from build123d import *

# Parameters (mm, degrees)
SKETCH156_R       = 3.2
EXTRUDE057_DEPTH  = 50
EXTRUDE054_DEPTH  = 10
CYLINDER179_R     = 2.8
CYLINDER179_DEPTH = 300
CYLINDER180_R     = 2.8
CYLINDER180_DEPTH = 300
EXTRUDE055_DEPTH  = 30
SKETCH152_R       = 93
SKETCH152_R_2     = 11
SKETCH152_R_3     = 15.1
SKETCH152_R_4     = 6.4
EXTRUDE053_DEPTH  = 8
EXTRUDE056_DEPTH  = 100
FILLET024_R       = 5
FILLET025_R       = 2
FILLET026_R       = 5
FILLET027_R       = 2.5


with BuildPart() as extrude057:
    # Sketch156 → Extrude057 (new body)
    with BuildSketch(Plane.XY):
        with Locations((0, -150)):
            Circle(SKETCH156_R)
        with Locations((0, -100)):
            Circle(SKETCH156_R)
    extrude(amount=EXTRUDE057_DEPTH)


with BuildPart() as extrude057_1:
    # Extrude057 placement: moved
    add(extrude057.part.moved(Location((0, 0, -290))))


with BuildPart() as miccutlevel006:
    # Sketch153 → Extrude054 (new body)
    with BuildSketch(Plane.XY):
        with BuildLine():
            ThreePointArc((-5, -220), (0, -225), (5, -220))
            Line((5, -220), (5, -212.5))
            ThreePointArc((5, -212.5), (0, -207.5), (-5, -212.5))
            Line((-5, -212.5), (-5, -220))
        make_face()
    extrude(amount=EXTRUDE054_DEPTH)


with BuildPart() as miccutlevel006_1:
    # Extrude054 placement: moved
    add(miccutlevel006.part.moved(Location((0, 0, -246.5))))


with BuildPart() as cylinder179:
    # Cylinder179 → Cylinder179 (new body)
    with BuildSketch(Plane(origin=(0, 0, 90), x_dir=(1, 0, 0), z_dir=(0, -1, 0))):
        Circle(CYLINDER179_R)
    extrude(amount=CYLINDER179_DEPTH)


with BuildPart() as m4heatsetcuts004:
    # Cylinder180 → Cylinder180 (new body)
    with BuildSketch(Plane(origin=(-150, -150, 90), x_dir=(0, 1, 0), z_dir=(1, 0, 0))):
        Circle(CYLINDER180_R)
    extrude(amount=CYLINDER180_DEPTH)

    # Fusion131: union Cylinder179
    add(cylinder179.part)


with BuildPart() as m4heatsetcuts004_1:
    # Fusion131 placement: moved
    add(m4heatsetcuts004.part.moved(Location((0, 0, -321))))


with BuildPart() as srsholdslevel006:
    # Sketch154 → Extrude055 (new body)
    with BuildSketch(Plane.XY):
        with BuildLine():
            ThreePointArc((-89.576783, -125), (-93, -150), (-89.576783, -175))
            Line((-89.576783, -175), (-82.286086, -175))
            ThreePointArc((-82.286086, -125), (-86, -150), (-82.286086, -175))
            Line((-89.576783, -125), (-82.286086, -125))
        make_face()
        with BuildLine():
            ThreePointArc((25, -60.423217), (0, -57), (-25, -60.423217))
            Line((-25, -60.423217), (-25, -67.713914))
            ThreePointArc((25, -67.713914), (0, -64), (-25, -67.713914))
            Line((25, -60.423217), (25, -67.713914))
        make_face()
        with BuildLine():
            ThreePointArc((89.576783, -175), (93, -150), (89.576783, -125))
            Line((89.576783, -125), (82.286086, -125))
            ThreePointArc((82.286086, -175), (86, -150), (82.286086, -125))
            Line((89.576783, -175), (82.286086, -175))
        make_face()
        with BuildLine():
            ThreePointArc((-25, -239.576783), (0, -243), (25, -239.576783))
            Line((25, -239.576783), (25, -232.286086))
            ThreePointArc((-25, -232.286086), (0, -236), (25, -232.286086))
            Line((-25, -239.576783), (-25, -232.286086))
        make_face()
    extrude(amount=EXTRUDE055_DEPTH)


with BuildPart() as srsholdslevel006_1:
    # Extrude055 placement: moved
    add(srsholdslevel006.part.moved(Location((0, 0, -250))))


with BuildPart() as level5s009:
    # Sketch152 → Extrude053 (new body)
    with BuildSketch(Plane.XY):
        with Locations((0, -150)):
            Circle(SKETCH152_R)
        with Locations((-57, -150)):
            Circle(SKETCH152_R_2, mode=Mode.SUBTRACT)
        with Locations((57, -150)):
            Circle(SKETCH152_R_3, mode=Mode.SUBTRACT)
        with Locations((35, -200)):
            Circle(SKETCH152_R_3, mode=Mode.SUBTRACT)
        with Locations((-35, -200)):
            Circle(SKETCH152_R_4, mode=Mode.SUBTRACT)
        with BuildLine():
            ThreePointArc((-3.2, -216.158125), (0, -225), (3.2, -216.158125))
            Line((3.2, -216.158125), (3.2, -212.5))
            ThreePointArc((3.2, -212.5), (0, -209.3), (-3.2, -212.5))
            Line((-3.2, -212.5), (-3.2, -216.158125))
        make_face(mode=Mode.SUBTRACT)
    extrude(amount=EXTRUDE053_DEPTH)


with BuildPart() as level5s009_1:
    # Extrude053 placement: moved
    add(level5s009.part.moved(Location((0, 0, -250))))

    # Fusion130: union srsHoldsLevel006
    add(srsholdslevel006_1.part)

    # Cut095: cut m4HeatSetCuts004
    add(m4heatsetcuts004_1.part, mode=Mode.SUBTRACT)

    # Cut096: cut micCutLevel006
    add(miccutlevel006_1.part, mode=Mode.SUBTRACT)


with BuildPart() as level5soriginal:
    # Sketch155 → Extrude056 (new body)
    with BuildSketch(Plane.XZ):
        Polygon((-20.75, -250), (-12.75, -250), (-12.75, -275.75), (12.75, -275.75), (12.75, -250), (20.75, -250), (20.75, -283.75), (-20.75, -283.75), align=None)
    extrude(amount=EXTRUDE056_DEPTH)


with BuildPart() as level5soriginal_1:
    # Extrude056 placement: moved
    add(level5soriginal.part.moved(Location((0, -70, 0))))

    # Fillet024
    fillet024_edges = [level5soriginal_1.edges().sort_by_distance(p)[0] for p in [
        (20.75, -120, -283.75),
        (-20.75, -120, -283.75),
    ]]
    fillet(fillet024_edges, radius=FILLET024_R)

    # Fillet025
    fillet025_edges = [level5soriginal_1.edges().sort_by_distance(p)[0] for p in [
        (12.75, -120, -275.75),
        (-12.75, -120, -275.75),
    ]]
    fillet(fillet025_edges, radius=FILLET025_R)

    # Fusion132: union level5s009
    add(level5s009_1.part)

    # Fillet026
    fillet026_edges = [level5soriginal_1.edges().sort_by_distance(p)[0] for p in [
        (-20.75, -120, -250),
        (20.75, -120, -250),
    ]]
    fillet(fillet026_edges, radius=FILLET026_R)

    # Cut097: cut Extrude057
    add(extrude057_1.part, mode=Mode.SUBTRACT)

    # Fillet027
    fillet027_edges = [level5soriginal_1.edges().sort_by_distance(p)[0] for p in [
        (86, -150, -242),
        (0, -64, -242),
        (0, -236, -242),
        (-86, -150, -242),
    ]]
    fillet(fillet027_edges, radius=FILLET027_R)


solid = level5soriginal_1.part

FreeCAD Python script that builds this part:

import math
import FreeCAD as App
import Part
import Sketcher

V = App.Vector


def edges_at(feature, points):
    """Names of the edges that pass closest to the given points."""
    edges = feature.Shape.Edges
    near = lambda p: min(range(len(edges)), key=lambda i: edges[i].distToShape(Part.Vertex(*p))[0])
    return sorted({f"Edge{near(p) + 1}" for p in points})


def add_polygon(sketch, points):
    """Adds a closed chain of lines whose ends are joined by coincident constraints."""
    first, n = sketch.GeometryCount, len(points)
    for a, b in zip(points, points[1:] + points[:1]):
        sketch.addGeometry(Part.LineSegment(App.Vector(*a, 0), App.Vector(*b, 0)), False)
    for i in range(n):
        sketch.addConstraint(Sketcher.Constraint("Coincident", first + i, 2, first + (i + 1) % n, 1))

doc = App.newDocument("Part")
body = doc.addObject("PartDesign::Body", "Body")
body.AllowCompound = True

# Sketch on XY plane
sketch1 = body.newObject("Sketcher::SketchObject", "Sketch")
sketch1.AttachmentSupport = (doc.getObject("XY_Plane"), [""])
sketch1.MapMode = "FlatFace"
sketch1.addGeometry([
    Part.Circle(V(0, -150, 0), V(0, 0, 1), 3.2),
    Part.Circle(V(0, -100, 0), V(0, 0, 1), 3.2),
], False)
sketch1.addConstraint([
    Sketcher.Constraint("Equal", 0, 1),
    Sketcher.Constraint("PointOnObject", 0, 3, -2),
    Sketcher.Constraint("PointOnObject", 1, 3, -2),
    Sketcher.Constraint("Diameter", 0, 6.4),
    Sketcher.Constraint("DistanceY", 0, 3, -1, 1, 150.0),
    Sketcher.Constraint("DistanceY", 1, 3, -1, 1, 100.0),
])
pad1 = body.newObject("PartDesign::Pad", "Pad")
pad1.Profile = sketch1
pad1.Length = 50
body2 = doc.addObject("PartDesign::Body", "Body001")
body2.AllowCompound = True
doc.recompute()

body.Placement = App.Placement(V(0, 0, -290), App.Rotation(V(0, 0, 1), 0))
boolean = body2.newObject("PartDesign::Boolean", "Boolean")
boolean.Type = "Fuse"
boolean.addObjects([body])
body3 = doc.addObject("PartDesign::Body", "Body002")

# Sketch on XY plane
sketch2 = body3.newObject("Sketcher::SketchObject", "Sketch001")
sketch2.AttachmentSupport = (doc.getObject("XY_Plane002"), [""])
sketch2.MapMode = "FlatFace"
sketch2.addGeometry([
    Part.ArcOfCircle(Part.Circle(V(0, -220, 0), V(0, 0, 1), 5), math.radians(180), math.radians(360)),
    Part.LineSegment(V(5, -220, 0), V(5, -212, 0)),
    Part.ArcOfCircle(Part.Circle(V(0, -212, 0), V(0, 0, 1), 5), math.radians(0), math.radians(180)),
    Part.LineSegment(V(-5, -212, 0), V(-5, -220, 0)),
], False)
sketch2.addConstraint([
    Sketcher.Constraint("Tangent", 0, 2, 1, 1),
    Sketcher.Constraint("Tangent", 1, 2, 2, 1),
    Sketcher.Constraint("Tangent", 2, 2, 3, 1),
    Sketcher.Constraint("Tangent", 3, 2, 0, 1),
    Sketcher.Constraint("Vertical", 1),
    Sketcher.Constraint("Vertical", 3),
    Sketcher.Constraint("PointOnObject", 0, 3, -2),
    Sketcher.Constraint("Radius", 0, 5.0),
    Sketcher.Constraint("DistanceY", 1, 1, 1, 2, 7.5),
    Sketcher.Constraint("DistanceY", 0, 3, -1, 1, 220.0),
])
pad2 = body3.newObject("PartDesign::Pad", "Pad001")
pad2.Profile = sketch2
pad2.Length = 10
body4 = doc.addObject("PartDesign::Body", "Body003")
doc.recompute()

body3.Placement = App.Placement(V(0, 0, -246.5), App.Rotation(V(0, 0, 1), 0))
boolean2 = body4.newObject("PartDesign::Boolean", "Boolean001")
boolean2.Type = "Fuse"
boolean2.addObjects([body3])
body5 = doc.addObject("PartDesign::Body", "Body004")

# Sketch on XZ plane
sketch3 = body5.newObject("Sketcher::SketchObject", "Sketch002")
sketch3.AttachmentSupport = (doc.getObject("XZ_Plane004"), [""])
sketch3.MapMode = "FlatFace"
sketch3.addGeometry(Part.Circle(V(0, 90, 0), V(0, 0, 1), 2.8), False)
sketch3.addConstraint([
    Sketcher.Constraint("PointOnObject", 0, 3, -2),
    Sketcher.Constraint("Diameter", 0, 5.6),
    Sketcher.Constraint("DistanceY", -1, 1, 0, 3, 90.0),
])
pad3 = body5.newObject("PartDesign::Pad", "Pad002")
pad3.Profile = sketch3
pad3.Length = 300
body6 = doc.addObject("PartDesign::Body", "Body005")

# Sketch on YZ plane
sketch4 = body6.newObject("Sketcher::SketchObject", "Sketch003")
sketch4.AttachmentSupport = (doc.getObject("YZ_Plane005"), [""])
sketch4.MapMode = "FlatFace"
sketch4.AttachmentOffset = App.Placement(V(0, 0, -150), App.Rotation())
sketch4.addGeometry(Part.Circle(V(-150, 90, 0), V(0, 0, 1), 2.8), False)
sketch4.addConstraint([
    Sketcher.Constraint("Diameter", 0, 5.6),
    Sketcher.Constraint("DistanceX", 0, 3, -1, 1, 150.0),
    Sketcher.Constraint("DistanceY", -1, 1, 0, 3, 90.0),
])
pad4 = body6.newObject("PartDesign::Pad", "Pad003")
pad4.Profile = sketch4
pad4.Length = 300
doc.recompute()

boolean3 = body6.newObject("PartDesign::Boolean", "Boolean002")
boolean3.Type = "Fuse"
boolean3.addObjects([body5])
body7 = doc.addObject("PartDesign::Body", "Body006")
doc.recompute()

body6.Placement = App.Placement(V(0, 0, -321), App.Rotation(V(0, 0, 1), 0))
boolean4 = body7.newObject("PartDesign::Boolean", "Boolean003")
boolean4.Type = "Fuse"
boolean4.addObjects([body6])
body8 = doc.addObject("PartDesign::Body", "Body007")
body8.AllowCompound = True

# Sketch on XY plane
sketch5 = body8.newObject("Sketcher::SketchObject", "Sketch004")
sketch5.AttachmentSupport = (doc.getObject("XY_Plane007"), [""])
sketch5.MapMode = "FlatFace"
sketch5.addGeometry([
    Part.ArcOfCircle(Part.Circle(V(0.000008, -150, 0), V(0, 0, 1), 93.000008), math.radians(164.406106), math.radians(195.593894)),  # 0
    Part.LineSegment(V(-89.576783, -175, 0), V(-82.286086, -175, 0)),  # 1
    Part.ArcOfCircle(Part.Circle(V(-0.000007, -150, 0), V(0, 0, 1), 85.999993), math.radians(163.100269), math.radians(196.899731)),  # 2
    Part.LineSegment(V(-82.286086, -125, 0), V(-89.576783, -125, 0)),  # 3
    Part.ArcOfCircle(Part.Circle(V(0, -150.000008, 0), V(0, 0, 1), 93.000008), math.radians(74.406106), math.radians(105.593894)),  # 4
    Part.LineSegment(V(-25, -60.423217, 0), V(-25, -67.713914, 0)),  # 5
    Part.ArcOfCircle(Part.Circle(V(0, -149.999993, 0), V(0, 0, 1), 85.999993), math.radians(73.100269), math.radians(106.899731)),  # 6
    Part.LineSegment(V(25, -67.713914, 0), V(25, -60.423217, 0)),  # 7
    Part.ArcOfCircle(Part.Circle(V(-0.000008, -150, 0), V(0, 0, 1), 93.000008), math.radians(-15.593894), math.radians(15.593894)),  # 8
    Part.LineSegment(V(89.576783, -125, 0), V(82.286086, -125, 0)),  # 9
    Part.ArcOfCircle(Part.Circle(V(0.000007, -150, 0), V(0, 0, 1), 85.999993), math.radians(-16.899731), math.radians(16.899731)),  # 10
    Part.LineSegment(V(82.286086, -175, 0), V(89.576783, -175, 0)),  # 11
    Part.ArcOfCircle(Part.Circle(V(0, -149.999992, 0), V(0, 0, 1), 93.000008), math.radians(-105.593894), math.radians(-74.406106)),  # 12
    Part.LineSegment(V(25, -239.576783, 0), V(25, -232.286086, 0)),  # 13
    Part.ArcOfCircle(Part.Circle(V(0, -150.000007, 0), V(0, 0, 1), 85.999993), math.radians(-106.899731), math.radians(-73.100269)),  # 14
    Part.LineSegment(V(-25, -232.286086, 0), V(-25, -239.576783, 0)),  # 15
], False)
sketch5.addConstraint([
    Sketcher.Constraint("Coincident", 0, 2, 1, 1),
    Sketcher.Constraint("Coincident", 1, 2, 2, 2),
    Sketcher.Constraint("Coincident", 2, 1, 3, 1),
    Sketcher.Constraint("Coincident", 3, 2, 0, 1),
    Sketcher.Constraint("Coincident", 4, 2, 5, 1),
    Sketcher.Constraint("Coincident", 5, 2, 6, 2),
    Sketcher.Constraint("Coincident", 6, 1, 7, 1),
    Sketcher.Constraint("Coincident", 7, 2, 4, 1),
    Sketcher.Constraint("Coincident", 8, 2, 9, 1),
    Sketcher.Constraint("Coincident", 9, 2, 10, 2),
    Sketcher.Constraint("Coincident", 10, 1, 11, 1),
    Sketcher.Constraint("Coincident", 11, 2, 8, 1),
    Sketcher.Constraint("Coincident", 12, 2, 13, 1),
    Sketcher.Constraint("Coincident", 13, 2, 14, 2),
    Sketcher.Constraint("Coincident", 14, 1, 15, 1),
    Sketcher.Constraint("Coincident", 15, 2, 12, 1),
    Sketcher.Constraint("Horizontal", 1),
    Sketcher.Constraint("Horizontal", 3),
    Sketcher.Constraint("Vertical", 5),
    Sketcher.Constraint("Vertical", 7),
    Sketcher.Constraint("Horizontal", 9),
    Sketcher.Constraint("Horizontal", 11),
    Sketcher.Constraint("Vertical", 13),
    Sketcher.Constraint("Vertical", 15),
    Sketcher.Constraint("Coincident", 6, 3, 2, 3),
    Sketcher.Constraint("Coincident", 8, 3, 2, 3),
    Sketcher.Constraint("Coincident", 10, 3, 0, 3),
    Sketcher.Constraint("Coincident", 12, 3, 6, 3),
    Sketcher.Constraint("Coincident", 14, 3, 2, 3),
    Sketcher.Constraint("PointOnObject", 4, 3, -2),
    Sketcher.Constraint("PointOnObject", 6, 3, -2),
    Sketcher.Constraint("DistanceY", 0, 3, -1, 1, 150.0),
    Sketcher.Constraint("DistanceY", 2, 3, -1, 1, 150.0),
    Sketcher.Constraint("DistanceY", 0, 2, -1, 1, 175.0),
    Sketcher.Constraint("DistanceY", 2, 1, -1, 1, 125.0),
    Sketcher.Constraint("DistanceX", 4, 2, -1, 1, 25.0),
    Sketcher.Constraint("DistanceX", -1, 1, 6, 1, 25.0),
    Sketcher.Constraint("DistanceY", 8, 2, -1, 1, 125.0),
    Sketcher.Constraint("DistanceY", 10, 1, -1, 1, 175.0),
    Sketcher.Constraint("DistanceX", -1, 1, 12, 2, 25.0),
    Sketcher.Constraint("DistanceX", 14, 1, -1, 1, 25.0),
    Sketcher.Constraint("Radius", 0, 93.000008),
    Sketcher.Constraint("Radius", 2, 85.999993),
    Sketcher.Constraint("Radius", 4, 93.000008),
    Sketcher.Constraint("Radius", 6, 85.999993),
    Sketcher.Constraint("Radius", 8, 93.000008),
    Sketcher.Constraint("Radius", 10, 85.999993),
    Sketcher.Constraint("Radius", 12, 93.000008),
    Sketcher.Constraint("Radius", 14, 85.999993),
    Sketcher.Constraint("DistanceX", 1, 1, 1, 2, 7.290697),
    Sketcher.Constraint("DistanceY", 5, 2, 5, 1, 7.290697),
])
pad5 = body8.newObject("PartDesign::Pad", "Pad004")
pad5.Profile = sketch5
pad5.Length = 30
body9 = doc.addObject("PartDesign::Body", "Body008")
body9.AllowCompound = True
doc.recompute()

body8.Placement = App.Placement(V(0, 0, -250), App.Rotation(V(0, 0, 1), 0))
boolean5 = body9.newObject("PartDesign::Boolean", "Boolean004")
boolean5.Type = "Fuse"
boolean5.addObjects([body8])
body10 = doc.addObject("PartDesign::Body", "Body009")

# Sketch on XY plane
sketch6 = body10.newObject("Sketcher::SketchObject", "Sketch005")
sketch6.AttachmentSupport = (doc.getObject("XY_Plane009"), [""])
sketch6.MapMode = "FlatFace"
sketch6.addGeometry([
    Part.Circle(V(0, -150, 0), V(0, 0, 1), 93),  # 0
    Part.ArcOfCircle(Part.Circle(V(0, -220, 0), V(0, 0, 1), 5), math.radians(130), math.radians(410)),  # 1
    Part.LineSegment(V(-3.2, -216.2, 0), V(-3.2, -212.5, 0)),  # 2
    Part.ArcOfCircle(Part.Circle(V(0, -212.5, 0), V(0, 0, 1), 3.2), math.radians(0), math.radians(180)),  # 3
    Part.LineSegment(V(3.2, -212.5, 0), V(3.2, -216.2, 0)),  # 4
    Part.Circle(V(-35, -200, 0), V(0, 0, 1), 6.4),  # 5
    Part.Circle(V(35, -200, 0), V(0, 0, 1), 15.1),  # 6
    Part.Circle(V(-57, -150, 0), V(0, 0, 1), 11),  # 7
    Part.Circle(V(57, -150, 0), V(0, 0, 1), 15.1),  # 8
], False)
sketch6.addConstraint([
    Sketcher.Constraint("Coincident", 1, 1, 2, 1),
    Sketcher.Constraint("Tangent", 2, 2, 3, 2),
    Sketcher.Constraint("Tangent", 3, 1, 4, 1),
    Sketcher.Constraint("Coincident", 4, 2, 1, 2),
    Sketcher.Constraint("Vertical", 2),
    Sketcher.Constraint("Vertical", 4),
    Sketcher.Constraint("Equal", 6, 8),
    Sketcher.Constraint("Symmetric", 5, 3, 6, 3, -2),
    Sketcher.Constraint("Symmetric", 7, 3, 8, 3, -2),
    Sketcher.Constraint("Symmetric", 1, 1, 4, 2, -2),
    Sketcher.Constraint("PointOnObject", 0, 3, -2),
    Sketcher.Constraint("Horizontal", 0, 3, 7, 3),
    Sketcher.Constraint("Diameter", 0, 186.0),
    Sketcher.Constraint("Diameter", 7, 22.0),
    Sketcher.Constraint("Radius", 1, 5.0),
    Sketcher.Constraint("Diameter", 5, 12.8),
    Sketcher.Constraint("Diameter", 6, 30.2),
    Sketcher.Constraint("Radius", 3, 3.2),
    Sketcher.Constraint("DistanceY", 0, 3, -1, 1, 150.0),
    Sketcher.Constraint("DistanceY", 1, 3, -1, 1, 220.0),
    Sketcher.Constraint("DistanceX", 5, 3, -1, 1, 35.0),
    Sketcher.Constraint("DistanceY", 5, 3, -1, 1, 200.0),
    Sketcher.Constraint("DistanceX", 7, 3, -1, 1, 57.0),
    Sketcher.Constraint("DistanceY", 3, 3, -1, 1, 212.5),
])
pad6 = body10.newObject("PartDesign::Pad", "Pad005")
pad6.Profile = sketch6
pad6.Length = 8
body11 = doc.addObject("PartDesign::Body", "Body010")
doc.recompute()

body10.Placement = App.Placement(V(0, 0, -250), App.Rotation(V(0, 0, 1), 0))
boolean6 = body11.newObject("PartDesign::Boolean", "Boolean005")
boolean6.Type = "Fuse"
boolean6.addObjects([body10])
doc.recompute()

boolean7 = body11.newObject("PartDesign::Boolean", "Boolean006")
boolean7.Type = "Fuse"
boolean7.addObjects([body9])
doc.recompute()

boolean8 = body11.newObject("PartDesign::Boolean", "Boolean007")
boolean8.Type = "Cut"
boolean8.addObjects([body7])
doc.recompute()

boolean9 = body11.newObject("PartDesign::Boolean", "Boolean008")
boolean9.Type = "Cut"
boolean9.addObjects([body4])
body12 = doc.addObject("PartDesign::Body", "Body011")

# Sketch on XZ plane
sketch7 = body12.newObject("Sketcher::SketchObject", "Sketch006")
sketch7.AttachmentSupport = (doc.getObject("XZ_Plane011"), [""])
sketch7.MapMode = "FlatFace"
add_polygon(sketch7, [(-13, -250), (-21, -250), (-21, -284), (21, -284), (21, -250), (13, -250), (13, -276), (-13, -276)])  # lines 0-7
sketch7.addConstraint([
    Sketcher.Constraint("Horizontal", 0),
    Sketcher.Constraint("Vertical", 1),
    Sketcher.Constraint("Horizontal", 2),
    Sketcher.Constraint("Vertical", 3),
    Sketcher.Constraint("Horizontal", 4),
    Sketcher.Constraint("Vertical", 5),
    Sketcher.Constraint("Horizontal", 6),
    Sketcher.Constraint("Vertical", 7),
    Sketcher.Constraint("Symmetric", 0, 2, 3, 2, -2),
    Sketcher.Constraint("Equal", 0, 4),
    Sketcher.Constraint("DistanceX", 0, 2, 0, 1, 8.0),
    Sketcher.Constraint("DistanceX", 2, 1, 2, 2, 41.5),
    Sketcher.Constraint("DistanceY", 0, 2, -1, 1, 250.0),
    Sketcher.Constraint("DistanceY", 2, 2, 5, 2, 8.0),
    Sketcher.Constraint("DistanceY", 1, 2, 1, 1, 33.75),
])
pad7 = body12.newObject("PartDesign::Pad", "Pad006")
pad7.Profile = sketch7
pad7.Length = 100
body13 = doc.addObject("PartDesign::Body", "Body012")
doc.recompute()

body12.Placement = App.Placement(V(0, -70, 0), App.Rotation(V(0, 0, 1), 0))
boolean10 = body13.newObject("PartDesign::Boolean", "Boolean009")
boolean10.Type = "Fuse"
boolean10.addObjects([body12])
doc.recompute()

fillet = body13.newObject("PartDesign::Fillet", "Fillet")
fillet.Base = (boolean10, edges_at(boolean10, [(20.75, -120, -283.75), (-20.75, -120, -283.75)]))
fillet.Radius = 5
doc.recompute()

fillet2 = body13.newObject("PartDesign::Fillet", "Fillet001")
fillet2.Base = (fillet, edges_at(fillet, [(12.75, -120, -275.75), (-12.75, -120, -275.75)]))
fillet2.Radius = 2
doc.recompute()

boolean11 = body13.newObject("PartDesign::Boolean", "Boolean010")
boolean11.Type = "Fuse"
boolean11.addObjects([body11])
doc.recompute()

fillet3 = body13.newObject("PartDesign::Fillet", "Fillet002")
fillet3.Base = (boolean11, edges_at(boolean11, [(-20.75, -120, -250), (20.75, -120, -250)]))
fillet3.Radius = 5
doc.recompute()

boolean12 = body13.newObject("PartDesign::Boolean", "Boolean011")
boolean12.Type = "Cut"
boolean12.addObjects([body2])
doc.recompute()

fillet4 = body13.newObject("PartDesign::Fillet", "Fillet003")
fillet4.Base = (boolean12, edges_at(boolean12, [
    (86, -150, -242),
    (0, -64, -242),
    (0, -236, -242),
    (-86, -150, -242),
]))
fillet4.Radius = 2.5

doc.recompute()
